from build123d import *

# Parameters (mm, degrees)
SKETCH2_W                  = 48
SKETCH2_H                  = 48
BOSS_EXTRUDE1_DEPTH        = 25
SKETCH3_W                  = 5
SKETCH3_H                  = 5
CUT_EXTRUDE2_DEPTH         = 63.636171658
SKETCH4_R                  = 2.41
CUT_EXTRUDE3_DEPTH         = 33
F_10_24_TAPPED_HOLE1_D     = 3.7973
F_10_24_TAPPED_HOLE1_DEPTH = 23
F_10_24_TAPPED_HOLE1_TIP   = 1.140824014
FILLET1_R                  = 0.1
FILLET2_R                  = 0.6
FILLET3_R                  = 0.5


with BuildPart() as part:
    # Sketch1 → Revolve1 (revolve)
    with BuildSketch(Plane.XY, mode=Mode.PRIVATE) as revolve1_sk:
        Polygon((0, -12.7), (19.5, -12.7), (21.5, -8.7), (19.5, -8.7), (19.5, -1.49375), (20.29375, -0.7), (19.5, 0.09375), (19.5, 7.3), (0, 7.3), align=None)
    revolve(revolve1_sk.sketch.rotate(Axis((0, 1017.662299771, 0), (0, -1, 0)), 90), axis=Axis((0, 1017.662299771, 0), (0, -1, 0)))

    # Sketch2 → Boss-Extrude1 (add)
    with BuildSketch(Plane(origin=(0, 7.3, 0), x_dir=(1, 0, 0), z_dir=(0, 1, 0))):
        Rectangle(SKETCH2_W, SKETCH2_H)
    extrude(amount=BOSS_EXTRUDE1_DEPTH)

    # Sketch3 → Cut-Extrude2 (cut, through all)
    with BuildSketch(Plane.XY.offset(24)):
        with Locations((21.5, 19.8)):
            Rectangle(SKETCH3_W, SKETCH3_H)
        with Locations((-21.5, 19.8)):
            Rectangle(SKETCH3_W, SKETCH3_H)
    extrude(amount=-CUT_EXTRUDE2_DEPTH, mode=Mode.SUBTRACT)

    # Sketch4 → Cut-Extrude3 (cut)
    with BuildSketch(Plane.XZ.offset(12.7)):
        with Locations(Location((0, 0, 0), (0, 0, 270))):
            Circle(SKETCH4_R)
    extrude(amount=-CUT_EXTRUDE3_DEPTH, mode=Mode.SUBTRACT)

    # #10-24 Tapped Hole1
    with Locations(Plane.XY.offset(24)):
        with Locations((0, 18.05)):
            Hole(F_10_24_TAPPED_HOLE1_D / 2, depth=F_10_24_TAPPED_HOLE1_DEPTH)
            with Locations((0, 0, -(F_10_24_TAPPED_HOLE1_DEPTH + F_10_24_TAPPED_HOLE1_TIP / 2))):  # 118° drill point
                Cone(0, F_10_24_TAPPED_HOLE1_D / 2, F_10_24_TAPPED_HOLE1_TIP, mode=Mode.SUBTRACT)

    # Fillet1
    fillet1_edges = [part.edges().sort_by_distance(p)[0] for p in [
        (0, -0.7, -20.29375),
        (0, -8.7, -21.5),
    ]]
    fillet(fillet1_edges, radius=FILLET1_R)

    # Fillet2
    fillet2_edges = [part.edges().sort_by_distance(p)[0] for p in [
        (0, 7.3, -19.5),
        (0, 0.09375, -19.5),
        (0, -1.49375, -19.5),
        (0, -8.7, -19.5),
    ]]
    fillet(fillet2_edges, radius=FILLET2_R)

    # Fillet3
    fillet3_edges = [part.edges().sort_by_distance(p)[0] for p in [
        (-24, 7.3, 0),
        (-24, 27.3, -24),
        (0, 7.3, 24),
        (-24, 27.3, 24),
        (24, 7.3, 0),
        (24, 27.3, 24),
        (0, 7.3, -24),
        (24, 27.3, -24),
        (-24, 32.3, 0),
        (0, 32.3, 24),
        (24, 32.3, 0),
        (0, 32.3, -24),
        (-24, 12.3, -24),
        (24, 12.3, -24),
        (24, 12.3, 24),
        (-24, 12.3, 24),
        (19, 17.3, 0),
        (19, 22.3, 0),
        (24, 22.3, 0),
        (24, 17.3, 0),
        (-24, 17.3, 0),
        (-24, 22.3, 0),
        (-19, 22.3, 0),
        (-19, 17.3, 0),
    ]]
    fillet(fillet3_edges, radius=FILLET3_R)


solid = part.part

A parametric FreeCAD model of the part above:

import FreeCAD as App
import Part
import Sketcher

V = App.Vector


def edges_at(feature, points):
    """Names of the edges that pass closest to the given points."""
    edges = feature.Shape.Edges
    near = lambda p: min(range(len(edges)), key=lambda i: edges[i].distToShape(Part.Vertex(*p))[0])
    return sorted({f"Edge{near(p) + 1}" for p in points})

doc = App.newDocument("Part")
body = doc.addObject("PartDesign::Body", "Body")

sketch1 = body.newObject("Sketcher::SketchObject", "Sketch")
sketch1.AttachmentSupport = (doc.getObject("XY_Plane"), [""])
sketch1.MapMode = "FlatFace"
sketch1.addGeometry([
    Part.LineSegment(V(0, -12.7, 0), V(19.5, -12.7, 0)),
    Part.LineSegment(V(19.5, -12.7, 0), V(21.5, -8.7, 0)),
    Part.LineSegment(V(21.5, -8.7, 0), V(19.5, -8.7, 0)),
    Part.LineSegment(V(19.5, -8.7, 0), V(19.5, -1.5, 0)),
    Part.LineSegment(V(19.5, -1.5, 0), V(20.3, -0.7, 0)),
    Part.LineSegment(V(20.3, -0.7, 0), V(19.5, 0.1, 0)),
    Part.LineSegment(V(19.5, 0.1, 0), V(19.5, 7.3, 0)),
    Part.LineSegment(V(19.5, 7.3, 0), V(0, 7.3, 0)),
    Part.LineSegment(V(0, 7.3, 0), V(0, -12.7, 0)),
], False)
sketch1.addConstraint([
    Sketcher.Constraint("Coincident", 0, 2, 1, 1),
    Sketcher.Constraint("Coincident", 1, 2, 2, 1),
    Sketcher.Constraint("Coincident", 2, 2, 3, 1),
    Sketcher.Constraint("Coincident", 3, 2, 4, 1),
    Sketcher.Constraint("Coincident", 4, 2, 5, 1),
    Sketcher.Constraint("Coincident", 5, 2, 6, 1),
    Sketcher.Constraint("Coincident", 6, 2, 7, 1),
    Sketcher.Constraint("Coincident", 7, 2, 8, 1),
    Sketcher.Constraint("Coincident", 8, 2, 0, 1),
    Sketcher.Constraint("Horizontal", 0),
    Sketcher.Constraint("Horizontal", 2),
    Sketcher.Constraint("Vertical", 3),
    Sketcher.Constraint("Vertical", 6),
    Sketcher.Constraint("Horizontal", 7),
    Sketcher.Constraint("Vertical", 8),
    Sketcher.Constraint("PointOnObject", 7, 2, -2),
    Sketcher.Constraint("Perpendicular", 4, 5),
    Sketcher.Constraint("Vertical", 0, 2, 2, 2),
    Sketcher.Constraint("Vertical", 3, 2, 5, 2),
    Sketcher.Constraint("Equal", 3, 6),
    Sketcher.Constraint("Equal", 4, 5),
    Sketcher.Constraint("DistanceX", 2, 2, 2, 1, 2.0),
    Sketcher.Constraint("DistanceY", 8, 2, 8, 1, 20.0),
    Sketcher.Constraint("DistanceX", 0, 1, 0, 2, 19.5),
    Sketcher.Constraint("DistanceY", 0, 2, 1, 2, 4.0),
    Sketcher.Constraint("DistanceY", 0, 2, -1, 1, 12.7),
    Sketcher.Constraint("DistanceY", 3, 1, 3, 2, 7.20625),
])
revolution = body.newObject("PartDesign::Revolution", "Revolution")
revolution.Profile = sketch1
revolution.ReferenceAxis = (sketch1, ["V_Axis"])
revolution.Angle = 360

sketch2 = body.newObject("Sketcher::SketchObject", "Sketch001")
sketch2.AttachmentSupport = (doc.getObject("XZ_Plane"), [""])
sketch2.MapMode = "FlatFace"
sketch2.AttachmentOffset = App.Placement(V(0, 0, -7.3), App.Rotation())
sketch2.addGeometry([
    Part.LineSegment(V(-24, -24, 0), V(-24, 24, 0)),
    Part.LineSegment(V(-24, 24, 0), V(24, 24, 0)),
    Part.LineSegment(V(24, 24, 0), V(24, -24, 0)),
    Part.LineSegment(V(24, -24, 0), V(-24, -24, 0)),
], False)
sketch2.addConstraint([
    Sketcher.Constraint("Coincident", 0, 2, 1, 1),
    Sketcher.Constraint("Coincident", 1, 2, 2, 1),
    Sketcher.Constraint("Coincident", 2, 2, 3, 1),
    Sketcher.Constraint("Coincident", 3, 2, 0, 1),
    Sketcher.Constraint("Vertical", 0),
    Sketcher.Constraint("Horizontal", 1),
    Sketcher.Constraint("Vertical", 2),
    Sketcher.Constraint("Horizontal", 3),
    Sketcher.Constraint("Symmetric", 0, 2, 2, 2, -1, 1),
    Sketcher.Constraint("Equal", 3, 0),
    Sketcher.Constraint("DistanceX", 1, 1, 1, 2, 48.0),
])
pad1 = body.newObject("PartDesign::Pad", "Pad")
pad1.Profile = sketch2
pad1.Length = 25
pad1.Reversed = True

sketch3 = body.newObject("Sketcher::SketchObject", "Sketch002")
sketch3.AttachmentSupport = (doc.getObject("XY_Plane"), [""])
sketch3.MapMode = "FlatFace"
sketch3.AttachmentOffset = App.Placement(V(0, 0, 24), App.Rotation())
sketch3.addGeometry([
    Part.LineSegment(V(19, 22, 0), V(19, 17, 0)),
    Part.LineSegment(V(19, 17, 0), V(24, 17, 0)),
    Part.LineSegment(V(24, 17, 0), V(24, 22, 0)),
    Part.LineSegment(V(24, 22, 0), V(19, 22, 0)),
    Part.LineSegment(V(-24, 22, 0), V(-24, 17, 0)),
    Part.LineSegment(V(-24, 17, 0), V(-19, 17, 0)),
    Part.LineSegment(V(-19, 17, 0), V(-19, 22, 0)),
    Part.LineSegment(V(-19, 22, 0), V(-24, 22, 0)),
], False)
sketch3.addConstraint([
    Sketcher.Constraint("Coincident", 0, 2, 1, 1),
    Sketcher.Constraint("Coincident", 1, 2, 2, 1),
    Sketcher.Constraint("Coincident", 2, 2, 3, 1),
    Sketcher.Constraint("Coincident", 3, 2, 0, 1),
    Sketcher.Constraint("Coincident", 4, 2, 5, 1),
    Sketcher.Constraint("Coincident", 5, 2, 6, 1),
    Sketcher.Constraint("Coincident", 6, 2, 7, 1),
    Sketcher.Constraint("Coincident", 7, 2, 4, 1),
    Sketcher.Constraint("Vertical", 0),
    Sketcher.Constraint("Horizontal", 1),
    Sketcher.Constraint("Vertical", 2),
    Sketcher.Constraint("Horizontal", 3),
    Sketcher.Constraint("Vertical", 4),
    Sketcher.Constraint("Horizontal", 5),
    Sketcher.Constraint("Vertical", 6),
    Sketcher.Constraint("Horizontal", 7),
    Sketcher.Constraint("Symmetric", 1, 2, 4, 2, -2),
    Sketcher.Constraint("Symmetric", 3, 2, 6, 2, -2),
    Sketcher.Constraint("Equal", 7, 0),
    Sketcher.Constraint("DistanceX", 1, 1, 1, 2, 5.0),
    Sketcher.Constraint("DistanceX", -1, 1, 0, 2, 19.0),
    Sketcher.Constraint("DistanceY", -1, 1, 0, 2, 17.3),
])
pocket1 = body.newObject("PartDesign::Pocket", "Pocket")
pocket1.Profile = sketch3
pocket1.Type = "ThroughAll"

sketch4 = body.newObject("Sketcher::SketchObject", "Sketch003")
sketch4.AttachmentSupport = (doc.getObject("XZ_Plane"), [""])
sketch4.MapMode = "FlatFace"
sketch4.AttachmentOffset = App.Placement(V(0, 0, 12.7), App.Rotation())
sketch4.addGeometry(Part.Circle(V(0, 0, 0), V(0, 0, 1), 2.4), False)
sketch4.addConstraint([
    Sketcher.Constraint("Coincident", 0, 3, -1, 1),
    Sketcher.Constraint("Diameter", 0, 4.82),
])
pocket2 = body.newObject("PartDesign::Pocket", "Pocket001")
pocket2.Profile = sketch4
pocket2.Length = 33

sketch5 = body.newObject("Sketcher::SketchObject", "Sketch004")
sketch5.AttachmentSupport = (doc.getObject("XY_Plane"), [""])
sketch5.MapMode = "FlatFace"
sketch5.AttachmentOffset = App.Placement(V(0, 0, 24), App.Rotation())
sketch5.addGeometry(Part.Circle(V(0, 18.1, 0), V(0, 0, 1), 1.9), False)
sketch5.addConstraint([
    Sketcher.Constraint("PointOnObject", 0, 3, -2),
    Sketcher.Constraint("Diameter", 0, 3.7973),
    Sketcher.Constraint("DistanceY", -1, 1, 0, 3, 18.05),
])
doc.recompute()
hole = body.newObject("PartDesign::Hole", "Hole")
hole.Profile = sketch5
hole.ThreadType = "None"
hole.Diameter = 3.7973
hole.DepthType = "Dimension"
hole.Depth = 23
hole.DrillPoint = "Angled"
hole.DrillPointAngle = 118
doc.recompute()

fillet = body.newObject("PartDesign::Fillet", "Fillet")
fillet.Base = (hole, edges_at(hole, [(0, -0.7, -20.294), (0, -8.7, -21.5)]))
fillet.Radius = 0.1
doc.recompute()

fillet2 = body.newObject("PartDesign::Fillet", "Fillet001")
fillet2.Base = (fillet, edges_at(fillet, [
    (0, 7.3, -19.5),
    (0, 0.094, -19.5),
    (0, -1.494, -19.5),
    (0, -8.7, -19.5),
]))
fillet2.Radius = 0.6
doc.recompute()

fillet3 = body.newObject("PartDesign::Fillet", "Fillet002")
fillet3.Base = (fillet2, edges_at(fillet2, [
    (-24, 7.3, 0),
    (-24, 27.3, -24),
    (0, 7.3, 24),
    (-24, 27.3, 24),
    (24, 7.3, 0),
    (24, 27.3, 24),
    (0, 7.3, -24),
    (24, 27.3, -24),
    (-24, 32.3, 0),
    (0, 32.3, 24),
    (24, 32.3, 0),
    (0, 32.3, -24),
    (-24, 12.3, -24),
    (24, 12.3, -24),
    (24, 12.3, 24),
    (-24, 12.3, 24),
    (19, 17.3, 0),
    (19, 22.3, 0),
    (24, 22.3, 0),
    (24, 17.3, 0),
    (-24, 17.3, 0),
    (-24, 22.3, 0),
    (-19, 22.3, 0),
    (-19, 17.3, 0),
]))
fillet3.Radius = 0.5

doc.recompute()
